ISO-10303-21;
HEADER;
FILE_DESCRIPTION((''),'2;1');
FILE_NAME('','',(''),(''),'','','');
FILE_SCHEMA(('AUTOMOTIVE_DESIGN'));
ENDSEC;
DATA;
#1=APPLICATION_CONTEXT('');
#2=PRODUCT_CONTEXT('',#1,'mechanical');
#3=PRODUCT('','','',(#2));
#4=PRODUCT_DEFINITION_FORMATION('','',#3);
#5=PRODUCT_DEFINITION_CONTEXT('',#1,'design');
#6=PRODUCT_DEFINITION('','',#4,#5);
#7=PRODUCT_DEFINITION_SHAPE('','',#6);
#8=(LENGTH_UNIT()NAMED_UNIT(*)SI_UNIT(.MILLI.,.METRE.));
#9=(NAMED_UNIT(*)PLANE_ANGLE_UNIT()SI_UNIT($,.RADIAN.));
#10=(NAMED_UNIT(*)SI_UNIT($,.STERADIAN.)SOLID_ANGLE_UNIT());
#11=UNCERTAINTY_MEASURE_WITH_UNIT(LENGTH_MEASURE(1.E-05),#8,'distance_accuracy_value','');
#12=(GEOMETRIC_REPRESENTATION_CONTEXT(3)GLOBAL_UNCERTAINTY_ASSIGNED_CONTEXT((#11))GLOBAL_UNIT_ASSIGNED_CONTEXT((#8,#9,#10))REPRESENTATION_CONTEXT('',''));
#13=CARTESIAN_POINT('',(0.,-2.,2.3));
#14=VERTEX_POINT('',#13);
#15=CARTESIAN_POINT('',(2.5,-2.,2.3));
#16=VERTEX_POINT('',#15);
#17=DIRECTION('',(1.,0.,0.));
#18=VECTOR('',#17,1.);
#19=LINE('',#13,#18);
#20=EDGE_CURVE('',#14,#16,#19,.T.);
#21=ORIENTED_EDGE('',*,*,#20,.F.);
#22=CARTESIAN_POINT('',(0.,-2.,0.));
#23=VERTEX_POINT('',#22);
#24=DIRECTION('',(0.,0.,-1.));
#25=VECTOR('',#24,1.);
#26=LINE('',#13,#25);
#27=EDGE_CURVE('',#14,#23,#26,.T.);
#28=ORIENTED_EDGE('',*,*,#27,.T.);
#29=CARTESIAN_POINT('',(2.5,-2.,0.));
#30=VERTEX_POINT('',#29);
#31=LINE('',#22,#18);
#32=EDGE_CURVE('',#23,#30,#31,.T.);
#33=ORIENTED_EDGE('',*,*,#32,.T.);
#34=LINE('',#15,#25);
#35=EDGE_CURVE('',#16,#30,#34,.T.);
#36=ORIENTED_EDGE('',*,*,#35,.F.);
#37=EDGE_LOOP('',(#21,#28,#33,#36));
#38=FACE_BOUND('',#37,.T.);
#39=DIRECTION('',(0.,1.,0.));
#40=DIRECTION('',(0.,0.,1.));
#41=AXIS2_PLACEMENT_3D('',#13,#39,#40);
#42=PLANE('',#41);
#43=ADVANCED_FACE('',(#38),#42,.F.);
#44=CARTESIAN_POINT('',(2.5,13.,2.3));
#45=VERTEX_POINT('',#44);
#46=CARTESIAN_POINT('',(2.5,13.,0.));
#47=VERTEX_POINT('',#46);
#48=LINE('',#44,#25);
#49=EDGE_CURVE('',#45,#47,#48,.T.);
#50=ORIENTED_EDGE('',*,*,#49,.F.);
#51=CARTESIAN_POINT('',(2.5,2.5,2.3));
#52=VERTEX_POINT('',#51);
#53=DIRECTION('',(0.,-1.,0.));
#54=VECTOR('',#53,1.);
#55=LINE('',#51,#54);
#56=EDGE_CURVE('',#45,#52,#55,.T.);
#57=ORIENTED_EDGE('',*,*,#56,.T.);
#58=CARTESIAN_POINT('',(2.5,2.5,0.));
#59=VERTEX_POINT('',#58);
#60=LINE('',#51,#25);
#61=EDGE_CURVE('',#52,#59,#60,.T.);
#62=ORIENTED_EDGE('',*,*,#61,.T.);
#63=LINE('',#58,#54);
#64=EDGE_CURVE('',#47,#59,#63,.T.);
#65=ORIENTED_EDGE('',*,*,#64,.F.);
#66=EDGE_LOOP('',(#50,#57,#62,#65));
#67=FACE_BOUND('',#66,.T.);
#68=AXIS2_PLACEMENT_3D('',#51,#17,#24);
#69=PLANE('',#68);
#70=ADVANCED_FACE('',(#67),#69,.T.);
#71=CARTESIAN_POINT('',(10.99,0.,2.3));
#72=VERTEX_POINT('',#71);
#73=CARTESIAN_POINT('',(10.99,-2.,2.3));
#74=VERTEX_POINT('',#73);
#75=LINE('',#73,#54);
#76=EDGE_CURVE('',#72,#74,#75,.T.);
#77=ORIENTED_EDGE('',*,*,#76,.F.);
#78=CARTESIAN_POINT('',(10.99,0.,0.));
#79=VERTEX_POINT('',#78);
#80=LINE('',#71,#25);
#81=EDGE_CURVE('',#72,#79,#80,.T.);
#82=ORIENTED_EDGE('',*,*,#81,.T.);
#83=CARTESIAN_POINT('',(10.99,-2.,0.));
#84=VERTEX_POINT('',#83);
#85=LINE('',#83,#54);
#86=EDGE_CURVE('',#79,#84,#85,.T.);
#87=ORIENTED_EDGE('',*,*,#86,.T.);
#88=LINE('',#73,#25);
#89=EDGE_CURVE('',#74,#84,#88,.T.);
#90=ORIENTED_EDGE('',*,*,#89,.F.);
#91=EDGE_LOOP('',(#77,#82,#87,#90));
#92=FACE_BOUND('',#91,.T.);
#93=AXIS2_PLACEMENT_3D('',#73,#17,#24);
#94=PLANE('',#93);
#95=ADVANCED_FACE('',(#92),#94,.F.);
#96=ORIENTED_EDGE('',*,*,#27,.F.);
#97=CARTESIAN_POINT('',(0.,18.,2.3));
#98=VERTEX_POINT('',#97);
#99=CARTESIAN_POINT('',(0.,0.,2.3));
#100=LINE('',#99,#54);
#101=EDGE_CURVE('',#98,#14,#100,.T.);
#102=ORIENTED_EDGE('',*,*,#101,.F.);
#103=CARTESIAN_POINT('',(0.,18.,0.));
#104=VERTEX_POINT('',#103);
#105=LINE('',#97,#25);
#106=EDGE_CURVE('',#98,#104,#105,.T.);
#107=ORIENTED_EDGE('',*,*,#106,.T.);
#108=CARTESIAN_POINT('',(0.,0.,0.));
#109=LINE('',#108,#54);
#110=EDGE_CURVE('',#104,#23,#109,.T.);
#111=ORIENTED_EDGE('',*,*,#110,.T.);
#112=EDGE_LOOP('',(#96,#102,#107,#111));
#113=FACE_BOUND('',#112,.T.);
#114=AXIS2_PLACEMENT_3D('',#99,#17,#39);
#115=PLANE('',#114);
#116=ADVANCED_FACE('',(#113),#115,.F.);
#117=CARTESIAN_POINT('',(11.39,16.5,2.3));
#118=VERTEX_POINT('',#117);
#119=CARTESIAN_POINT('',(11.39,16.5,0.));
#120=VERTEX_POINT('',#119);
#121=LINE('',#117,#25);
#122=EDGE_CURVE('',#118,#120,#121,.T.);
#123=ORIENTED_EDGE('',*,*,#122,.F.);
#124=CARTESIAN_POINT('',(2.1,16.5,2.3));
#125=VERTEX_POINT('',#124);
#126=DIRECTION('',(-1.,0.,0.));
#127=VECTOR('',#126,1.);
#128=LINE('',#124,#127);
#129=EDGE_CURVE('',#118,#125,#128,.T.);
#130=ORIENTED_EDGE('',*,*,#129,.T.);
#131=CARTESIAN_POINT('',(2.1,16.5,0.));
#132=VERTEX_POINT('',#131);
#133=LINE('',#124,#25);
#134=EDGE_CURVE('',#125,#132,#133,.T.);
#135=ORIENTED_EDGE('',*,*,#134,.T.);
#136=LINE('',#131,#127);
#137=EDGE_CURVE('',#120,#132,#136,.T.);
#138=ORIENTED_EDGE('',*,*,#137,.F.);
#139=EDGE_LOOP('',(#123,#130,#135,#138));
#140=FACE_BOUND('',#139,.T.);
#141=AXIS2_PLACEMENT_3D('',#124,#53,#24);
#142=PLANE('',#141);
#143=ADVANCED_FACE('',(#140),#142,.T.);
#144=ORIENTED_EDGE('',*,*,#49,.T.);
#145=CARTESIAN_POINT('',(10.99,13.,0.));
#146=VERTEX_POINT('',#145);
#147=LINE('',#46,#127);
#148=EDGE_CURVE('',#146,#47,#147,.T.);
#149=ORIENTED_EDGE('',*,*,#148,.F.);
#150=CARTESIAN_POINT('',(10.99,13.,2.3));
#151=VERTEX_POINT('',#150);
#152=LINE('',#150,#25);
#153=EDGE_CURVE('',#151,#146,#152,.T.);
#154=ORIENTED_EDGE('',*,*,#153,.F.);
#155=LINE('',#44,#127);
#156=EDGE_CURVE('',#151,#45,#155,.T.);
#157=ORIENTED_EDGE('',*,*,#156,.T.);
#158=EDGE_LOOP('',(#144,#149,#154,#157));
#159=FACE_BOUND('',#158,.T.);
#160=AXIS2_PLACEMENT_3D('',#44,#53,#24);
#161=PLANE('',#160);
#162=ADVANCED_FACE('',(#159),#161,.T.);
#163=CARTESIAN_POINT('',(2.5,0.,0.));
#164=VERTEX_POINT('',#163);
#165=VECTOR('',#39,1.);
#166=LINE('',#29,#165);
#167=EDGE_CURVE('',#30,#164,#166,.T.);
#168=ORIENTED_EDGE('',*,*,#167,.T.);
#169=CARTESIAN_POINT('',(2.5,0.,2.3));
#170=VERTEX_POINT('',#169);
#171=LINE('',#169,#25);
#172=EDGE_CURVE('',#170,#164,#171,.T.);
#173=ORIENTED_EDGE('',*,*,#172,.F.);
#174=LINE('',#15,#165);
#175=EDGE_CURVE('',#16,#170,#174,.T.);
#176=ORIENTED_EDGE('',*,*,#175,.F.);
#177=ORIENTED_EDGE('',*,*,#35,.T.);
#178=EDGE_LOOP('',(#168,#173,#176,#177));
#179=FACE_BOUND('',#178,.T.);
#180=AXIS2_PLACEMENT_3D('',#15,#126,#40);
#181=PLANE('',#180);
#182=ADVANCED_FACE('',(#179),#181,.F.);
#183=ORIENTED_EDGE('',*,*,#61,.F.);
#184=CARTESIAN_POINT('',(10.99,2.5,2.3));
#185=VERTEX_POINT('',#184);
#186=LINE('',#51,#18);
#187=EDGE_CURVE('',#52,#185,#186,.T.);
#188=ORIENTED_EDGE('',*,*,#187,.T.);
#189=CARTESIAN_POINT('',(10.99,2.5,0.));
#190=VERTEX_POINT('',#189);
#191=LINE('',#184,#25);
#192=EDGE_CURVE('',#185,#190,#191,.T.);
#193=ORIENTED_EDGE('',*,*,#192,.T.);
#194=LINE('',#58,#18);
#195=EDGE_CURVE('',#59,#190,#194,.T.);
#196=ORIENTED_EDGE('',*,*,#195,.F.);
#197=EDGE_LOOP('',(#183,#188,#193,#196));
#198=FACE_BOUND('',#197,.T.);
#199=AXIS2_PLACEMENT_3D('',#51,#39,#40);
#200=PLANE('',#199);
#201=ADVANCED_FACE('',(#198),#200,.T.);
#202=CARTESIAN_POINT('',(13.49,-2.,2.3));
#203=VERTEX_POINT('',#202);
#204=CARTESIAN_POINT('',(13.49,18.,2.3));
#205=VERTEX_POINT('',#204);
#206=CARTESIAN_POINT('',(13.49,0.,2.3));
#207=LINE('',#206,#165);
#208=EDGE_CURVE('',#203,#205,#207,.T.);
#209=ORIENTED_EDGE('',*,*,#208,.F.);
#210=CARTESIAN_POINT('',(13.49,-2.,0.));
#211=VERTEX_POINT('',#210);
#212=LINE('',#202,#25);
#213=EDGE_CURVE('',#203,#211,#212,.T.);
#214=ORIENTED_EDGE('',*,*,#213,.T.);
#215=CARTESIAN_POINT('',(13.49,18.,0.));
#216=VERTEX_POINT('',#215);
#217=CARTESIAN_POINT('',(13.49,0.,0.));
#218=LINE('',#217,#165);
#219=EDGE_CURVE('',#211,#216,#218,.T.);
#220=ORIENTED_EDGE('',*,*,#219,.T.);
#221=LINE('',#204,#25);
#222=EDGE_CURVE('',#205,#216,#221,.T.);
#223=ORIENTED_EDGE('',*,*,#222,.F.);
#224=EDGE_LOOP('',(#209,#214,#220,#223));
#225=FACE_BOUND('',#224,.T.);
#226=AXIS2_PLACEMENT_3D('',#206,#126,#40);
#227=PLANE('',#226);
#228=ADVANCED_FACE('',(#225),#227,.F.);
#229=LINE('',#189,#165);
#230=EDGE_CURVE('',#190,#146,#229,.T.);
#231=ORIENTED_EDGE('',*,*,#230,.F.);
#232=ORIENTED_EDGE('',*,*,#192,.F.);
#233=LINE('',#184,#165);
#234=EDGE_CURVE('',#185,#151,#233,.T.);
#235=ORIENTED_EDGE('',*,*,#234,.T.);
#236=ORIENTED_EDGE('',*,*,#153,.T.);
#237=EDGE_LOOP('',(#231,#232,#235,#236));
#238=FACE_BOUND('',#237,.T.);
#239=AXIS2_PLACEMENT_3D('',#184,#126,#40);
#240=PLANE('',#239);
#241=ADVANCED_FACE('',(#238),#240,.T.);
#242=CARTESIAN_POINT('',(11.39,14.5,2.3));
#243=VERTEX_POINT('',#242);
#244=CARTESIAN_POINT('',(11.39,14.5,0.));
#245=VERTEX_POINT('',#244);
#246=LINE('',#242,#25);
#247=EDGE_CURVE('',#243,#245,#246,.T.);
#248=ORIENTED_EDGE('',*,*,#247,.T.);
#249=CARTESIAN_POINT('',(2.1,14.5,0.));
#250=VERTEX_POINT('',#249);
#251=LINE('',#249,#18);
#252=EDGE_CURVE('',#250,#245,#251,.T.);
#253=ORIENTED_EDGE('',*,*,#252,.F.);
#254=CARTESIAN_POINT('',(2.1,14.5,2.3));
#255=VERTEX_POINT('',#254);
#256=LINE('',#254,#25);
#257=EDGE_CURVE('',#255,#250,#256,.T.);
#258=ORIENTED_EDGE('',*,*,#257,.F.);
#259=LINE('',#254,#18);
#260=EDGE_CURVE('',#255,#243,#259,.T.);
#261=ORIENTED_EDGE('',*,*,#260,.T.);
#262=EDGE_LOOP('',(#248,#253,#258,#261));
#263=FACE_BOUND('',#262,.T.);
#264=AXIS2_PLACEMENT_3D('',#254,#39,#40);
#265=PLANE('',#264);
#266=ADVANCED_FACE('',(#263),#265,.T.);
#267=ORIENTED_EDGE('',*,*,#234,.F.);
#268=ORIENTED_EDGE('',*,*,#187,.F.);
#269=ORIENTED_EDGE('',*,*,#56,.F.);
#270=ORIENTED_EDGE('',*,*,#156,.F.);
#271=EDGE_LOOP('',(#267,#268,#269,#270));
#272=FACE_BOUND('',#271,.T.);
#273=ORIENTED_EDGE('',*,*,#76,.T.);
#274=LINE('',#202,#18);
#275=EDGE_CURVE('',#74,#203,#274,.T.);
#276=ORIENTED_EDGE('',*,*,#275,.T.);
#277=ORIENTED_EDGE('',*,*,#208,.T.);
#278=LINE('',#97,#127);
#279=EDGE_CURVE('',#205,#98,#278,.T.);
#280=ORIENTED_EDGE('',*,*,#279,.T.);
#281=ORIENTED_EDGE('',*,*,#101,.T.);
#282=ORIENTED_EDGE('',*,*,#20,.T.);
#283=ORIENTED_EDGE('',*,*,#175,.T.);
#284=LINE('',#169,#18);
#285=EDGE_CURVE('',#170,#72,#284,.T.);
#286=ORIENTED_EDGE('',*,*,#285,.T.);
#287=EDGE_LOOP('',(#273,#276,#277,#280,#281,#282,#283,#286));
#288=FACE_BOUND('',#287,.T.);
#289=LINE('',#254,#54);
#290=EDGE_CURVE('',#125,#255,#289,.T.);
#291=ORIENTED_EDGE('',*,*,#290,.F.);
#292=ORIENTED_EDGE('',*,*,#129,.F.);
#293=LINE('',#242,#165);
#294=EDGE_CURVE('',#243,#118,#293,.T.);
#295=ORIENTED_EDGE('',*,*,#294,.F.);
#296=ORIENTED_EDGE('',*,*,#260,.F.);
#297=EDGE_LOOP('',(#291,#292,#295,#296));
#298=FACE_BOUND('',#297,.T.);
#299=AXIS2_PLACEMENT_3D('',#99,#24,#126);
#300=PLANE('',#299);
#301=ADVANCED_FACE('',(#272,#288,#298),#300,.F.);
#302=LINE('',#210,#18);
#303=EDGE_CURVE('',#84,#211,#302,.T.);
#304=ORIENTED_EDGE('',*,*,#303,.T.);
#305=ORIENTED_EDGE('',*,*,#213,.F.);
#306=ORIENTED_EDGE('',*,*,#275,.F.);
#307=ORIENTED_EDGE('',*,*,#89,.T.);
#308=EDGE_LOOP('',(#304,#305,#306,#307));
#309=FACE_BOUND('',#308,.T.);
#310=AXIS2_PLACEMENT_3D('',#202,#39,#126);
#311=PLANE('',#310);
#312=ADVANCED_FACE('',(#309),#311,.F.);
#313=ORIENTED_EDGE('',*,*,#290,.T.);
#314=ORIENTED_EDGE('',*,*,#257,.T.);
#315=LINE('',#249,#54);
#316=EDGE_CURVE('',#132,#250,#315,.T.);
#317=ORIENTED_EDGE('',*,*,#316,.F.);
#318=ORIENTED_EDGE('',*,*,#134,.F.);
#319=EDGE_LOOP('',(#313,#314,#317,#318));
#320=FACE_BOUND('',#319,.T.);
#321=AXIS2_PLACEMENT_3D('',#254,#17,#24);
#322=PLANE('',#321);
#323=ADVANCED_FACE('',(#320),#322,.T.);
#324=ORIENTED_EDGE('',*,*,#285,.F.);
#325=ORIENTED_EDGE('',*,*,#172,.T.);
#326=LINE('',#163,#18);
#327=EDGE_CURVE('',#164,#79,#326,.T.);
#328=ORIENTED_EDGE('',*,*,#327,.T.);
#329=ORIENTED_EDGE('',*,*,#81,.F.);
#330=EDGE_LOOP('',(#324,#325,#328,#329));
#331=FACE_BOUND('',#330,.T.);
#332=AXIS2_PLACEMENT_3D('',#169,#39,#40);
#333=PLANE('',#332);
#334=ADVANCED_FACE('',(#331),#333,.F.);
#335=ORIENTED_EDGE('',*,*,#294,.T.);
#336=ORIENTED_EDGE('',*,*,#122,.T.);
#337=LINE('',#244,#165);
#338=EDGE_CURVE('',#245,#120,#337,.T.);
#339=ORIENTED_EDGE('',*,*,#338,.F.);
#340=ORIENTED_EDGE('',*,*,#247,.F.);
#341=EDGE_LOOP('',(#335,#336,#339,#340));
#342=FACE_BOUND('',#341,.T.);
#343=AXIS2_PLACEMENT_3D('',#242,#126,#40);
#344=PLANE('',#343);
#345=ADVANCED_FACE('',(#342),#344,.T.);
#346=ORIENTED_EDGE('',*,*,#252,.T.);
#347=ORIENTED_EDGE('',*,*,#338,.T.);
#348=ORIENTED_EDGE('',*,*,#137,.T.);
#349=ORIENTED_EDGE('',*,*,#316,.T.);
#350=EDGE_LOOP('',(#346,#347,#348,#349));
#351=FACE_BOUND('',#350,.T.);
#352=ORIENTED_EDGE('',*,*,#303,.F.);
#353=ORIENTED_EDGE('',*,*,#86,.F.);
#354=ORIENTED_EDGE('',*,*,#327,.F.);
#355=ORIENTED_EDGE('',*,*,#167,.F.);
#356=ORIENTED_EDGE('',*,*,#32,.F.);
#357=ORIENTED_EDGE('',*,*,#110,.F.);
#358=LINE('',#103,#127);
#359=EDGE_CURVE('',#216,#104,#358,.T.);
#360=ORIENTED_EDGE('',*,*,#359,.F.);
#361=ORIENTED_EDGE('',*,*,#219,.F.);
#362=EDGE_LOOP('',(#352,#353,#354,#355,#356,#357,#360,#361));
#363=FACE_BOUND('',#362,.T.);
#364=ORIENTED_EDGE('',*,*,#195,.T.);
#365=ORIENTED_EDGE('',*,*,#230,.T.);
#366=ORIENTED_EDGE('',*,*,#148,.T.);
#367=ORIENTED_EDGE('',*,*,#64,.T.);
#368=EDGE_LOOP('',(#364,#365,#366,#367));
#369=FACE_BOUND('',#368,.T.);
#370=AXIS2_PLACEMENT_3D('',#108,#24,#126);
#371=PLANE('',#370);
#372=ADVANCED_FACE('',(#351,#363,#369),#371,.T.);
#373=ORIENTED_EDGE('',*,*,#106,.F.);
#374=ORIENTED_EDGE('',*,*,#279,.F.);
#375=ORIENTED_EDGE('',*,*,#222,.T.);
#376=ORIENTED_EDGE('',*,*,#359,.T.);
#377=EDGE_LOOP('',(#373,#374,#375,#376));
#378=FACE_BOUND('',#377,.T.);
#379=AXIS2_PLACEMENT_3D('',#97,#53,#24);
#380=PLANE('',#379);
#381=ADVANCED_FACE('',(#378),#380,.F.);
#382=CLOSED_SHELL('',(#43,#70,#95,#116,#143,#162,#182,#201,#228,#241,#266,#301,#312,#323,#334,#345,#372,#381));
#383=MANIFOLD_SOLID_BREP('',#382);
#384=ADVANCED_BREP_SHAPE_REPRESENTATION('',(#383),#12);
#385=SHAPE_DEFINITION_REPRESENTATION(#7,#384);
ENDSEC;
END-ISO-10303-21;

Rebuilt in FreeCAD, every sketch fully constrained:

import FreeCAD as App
import Part
import Sketcher
from FreeCAD import Vector


def add_polygon(sketch, points):
    """Adds a closed chain of lines whose ends are joined by coincident constraints."""
    first, n = sketch.GeometryCount, len(points)
    for a, b in zip(points, points[1:] + points[:1]):
        sketch.addGeometry(Part.LineSegment(App.Vector(*a, 0), App.Vector(*b, 0)), False)
    for i in range(n):
        sketch.addConstraint(Sketcher.Constraint("Coincident", first + i, 2, first + (i + 1) % n, 1))

doc = App.newDocument("Part")
body = doc.addObject("PartDesign::Body", "Body")

# Sketch on XY plane
sketch1 = body.newObject("Sketcher::SketchObject", "Sketch")
sketch1.AttachmentSupport = (doc.getObject("XY_Plane"), [""])
sketch1.MapMode = "FlatFace"
add_polygon(sketch1, [(0, -2), (2.5, -2), (2.5, 0), (11, 0), (11, -2), (13.5, -2), (13.5, 18), (0, 18)])  # lines 0-7
add_polygon(sketch1, [(11, 2.5), (2.5, 2.5), (2.5, 13), (11, 13)])  # lines 8-11
add_polygon(sketch1, [(11.4, 14.5), (2.1, 14.5), (2.1, 16.5), (11.4, 16.5)])  # lines 12-15
sketch1.addConstraint(Sketcher.Constraint("Horizontal", 0))
sketch1.addConstraint(Sketcher.Constraint("Vertical", 1))
sketch1.addConstraint(Sketcher.Constraint("Horizontal", 2))
sketch1.addConstraint(Sketcher.Constraint("Vertical", 3))
sketch1.addConstraint(Sketcher.Constraint("Horizontal", 4))
sketch1.addConstraint(Sketcher.Constraint("Vertical", 5))
sketch1.addConstraint(Sketcher.Constraint("Horizontal", 6))
sketch1.addConstraint(Sketcher.Constraint("Vertical", 7))
sketch1.addConstraint(Sketcher.Constraint("Horizontal", 8))
sketch1.addConstraint(Sketcher.Constraint("Vertical", 9))
sketch1.addConstraint(Sketcher.Constraint("Horizontal", 10))
sketch1.addConstraint(Sketcher.Constraint("Vertical", 11))
sketch1.addConstraint(Sketcher.Constraint("Horizontal", 12))
sketch1.addConstraint(Sketcher.Constraint("Vertical", 13))
sketch1.addConstraint(Sketcher.Constraint("Horizontal", 14))
sketch1.addConstraint(Sketcher.Constraint("Vertical", 15))
sketch1.addConstraint(Sketcher.Constraint("PointOnObject", 1, 2, -1))
sketch1.addConstraint(Sketcher.Constraint("PointOnObject", 6, 2, -2))
sketch1.addConstraint(Sketcher.Constraint("Horizontal", 0, 2, 3, 2))
sketch1.addConstraint(Sketcher.Constraint("Vertical", 1, 2, 8, 2))
sketch1.addConstraint(Sketcher.Constraint("Vertical", 3, 2, 10, 2))
sketch1.addConstraint(Sketcher.Constraint("Equal", 0, 4))
sketch1.addConstraint(Sketcher.Constraint("Equal", 3, 13))
sketch1.addConstraint(Sketcher.Constraint("DistanceY", 1, 1, 1, 2, 2.0))
sketch1.addConstraint(Sketcher.Constraint("DistanceY", 5, 1, 5, 2, 20.0))
sketch1.addConstraint(Sketcher.Constraint("DistanceX", 0, 1, 0, 2, 2.5))
sketch1.addConstraint(Sketcher.Constraint("DistanceY", 9, 1, 9, 2, 10.5))
sketch1.addConstraint(Sketcher.Constraint("DistanceY", -1, 1, 9, 2, 13.0))
sketch1.addConstraint(Sketcher.Constraint("DistanceY", 8, 2, 12, 2, 12.0))
sketch1.addConstraint(Sketcher.Constraint("DistanceX", 2, 1, 2, 2, 8.49))
sketch1.addConstraint(Sketcher.Constraint("DistanceX", 12, 2, 12, 1, 9.29))
sketch1.addConstraint(Sketcher.Constraint("DistanceX", -1, 1, 12, 2, 2.1))
pad1 = body.newObject("PartDesign::Pad", "Pad")
pad1.Profile = sketch1
pad1.Length = 2.3

doc.recompute()
